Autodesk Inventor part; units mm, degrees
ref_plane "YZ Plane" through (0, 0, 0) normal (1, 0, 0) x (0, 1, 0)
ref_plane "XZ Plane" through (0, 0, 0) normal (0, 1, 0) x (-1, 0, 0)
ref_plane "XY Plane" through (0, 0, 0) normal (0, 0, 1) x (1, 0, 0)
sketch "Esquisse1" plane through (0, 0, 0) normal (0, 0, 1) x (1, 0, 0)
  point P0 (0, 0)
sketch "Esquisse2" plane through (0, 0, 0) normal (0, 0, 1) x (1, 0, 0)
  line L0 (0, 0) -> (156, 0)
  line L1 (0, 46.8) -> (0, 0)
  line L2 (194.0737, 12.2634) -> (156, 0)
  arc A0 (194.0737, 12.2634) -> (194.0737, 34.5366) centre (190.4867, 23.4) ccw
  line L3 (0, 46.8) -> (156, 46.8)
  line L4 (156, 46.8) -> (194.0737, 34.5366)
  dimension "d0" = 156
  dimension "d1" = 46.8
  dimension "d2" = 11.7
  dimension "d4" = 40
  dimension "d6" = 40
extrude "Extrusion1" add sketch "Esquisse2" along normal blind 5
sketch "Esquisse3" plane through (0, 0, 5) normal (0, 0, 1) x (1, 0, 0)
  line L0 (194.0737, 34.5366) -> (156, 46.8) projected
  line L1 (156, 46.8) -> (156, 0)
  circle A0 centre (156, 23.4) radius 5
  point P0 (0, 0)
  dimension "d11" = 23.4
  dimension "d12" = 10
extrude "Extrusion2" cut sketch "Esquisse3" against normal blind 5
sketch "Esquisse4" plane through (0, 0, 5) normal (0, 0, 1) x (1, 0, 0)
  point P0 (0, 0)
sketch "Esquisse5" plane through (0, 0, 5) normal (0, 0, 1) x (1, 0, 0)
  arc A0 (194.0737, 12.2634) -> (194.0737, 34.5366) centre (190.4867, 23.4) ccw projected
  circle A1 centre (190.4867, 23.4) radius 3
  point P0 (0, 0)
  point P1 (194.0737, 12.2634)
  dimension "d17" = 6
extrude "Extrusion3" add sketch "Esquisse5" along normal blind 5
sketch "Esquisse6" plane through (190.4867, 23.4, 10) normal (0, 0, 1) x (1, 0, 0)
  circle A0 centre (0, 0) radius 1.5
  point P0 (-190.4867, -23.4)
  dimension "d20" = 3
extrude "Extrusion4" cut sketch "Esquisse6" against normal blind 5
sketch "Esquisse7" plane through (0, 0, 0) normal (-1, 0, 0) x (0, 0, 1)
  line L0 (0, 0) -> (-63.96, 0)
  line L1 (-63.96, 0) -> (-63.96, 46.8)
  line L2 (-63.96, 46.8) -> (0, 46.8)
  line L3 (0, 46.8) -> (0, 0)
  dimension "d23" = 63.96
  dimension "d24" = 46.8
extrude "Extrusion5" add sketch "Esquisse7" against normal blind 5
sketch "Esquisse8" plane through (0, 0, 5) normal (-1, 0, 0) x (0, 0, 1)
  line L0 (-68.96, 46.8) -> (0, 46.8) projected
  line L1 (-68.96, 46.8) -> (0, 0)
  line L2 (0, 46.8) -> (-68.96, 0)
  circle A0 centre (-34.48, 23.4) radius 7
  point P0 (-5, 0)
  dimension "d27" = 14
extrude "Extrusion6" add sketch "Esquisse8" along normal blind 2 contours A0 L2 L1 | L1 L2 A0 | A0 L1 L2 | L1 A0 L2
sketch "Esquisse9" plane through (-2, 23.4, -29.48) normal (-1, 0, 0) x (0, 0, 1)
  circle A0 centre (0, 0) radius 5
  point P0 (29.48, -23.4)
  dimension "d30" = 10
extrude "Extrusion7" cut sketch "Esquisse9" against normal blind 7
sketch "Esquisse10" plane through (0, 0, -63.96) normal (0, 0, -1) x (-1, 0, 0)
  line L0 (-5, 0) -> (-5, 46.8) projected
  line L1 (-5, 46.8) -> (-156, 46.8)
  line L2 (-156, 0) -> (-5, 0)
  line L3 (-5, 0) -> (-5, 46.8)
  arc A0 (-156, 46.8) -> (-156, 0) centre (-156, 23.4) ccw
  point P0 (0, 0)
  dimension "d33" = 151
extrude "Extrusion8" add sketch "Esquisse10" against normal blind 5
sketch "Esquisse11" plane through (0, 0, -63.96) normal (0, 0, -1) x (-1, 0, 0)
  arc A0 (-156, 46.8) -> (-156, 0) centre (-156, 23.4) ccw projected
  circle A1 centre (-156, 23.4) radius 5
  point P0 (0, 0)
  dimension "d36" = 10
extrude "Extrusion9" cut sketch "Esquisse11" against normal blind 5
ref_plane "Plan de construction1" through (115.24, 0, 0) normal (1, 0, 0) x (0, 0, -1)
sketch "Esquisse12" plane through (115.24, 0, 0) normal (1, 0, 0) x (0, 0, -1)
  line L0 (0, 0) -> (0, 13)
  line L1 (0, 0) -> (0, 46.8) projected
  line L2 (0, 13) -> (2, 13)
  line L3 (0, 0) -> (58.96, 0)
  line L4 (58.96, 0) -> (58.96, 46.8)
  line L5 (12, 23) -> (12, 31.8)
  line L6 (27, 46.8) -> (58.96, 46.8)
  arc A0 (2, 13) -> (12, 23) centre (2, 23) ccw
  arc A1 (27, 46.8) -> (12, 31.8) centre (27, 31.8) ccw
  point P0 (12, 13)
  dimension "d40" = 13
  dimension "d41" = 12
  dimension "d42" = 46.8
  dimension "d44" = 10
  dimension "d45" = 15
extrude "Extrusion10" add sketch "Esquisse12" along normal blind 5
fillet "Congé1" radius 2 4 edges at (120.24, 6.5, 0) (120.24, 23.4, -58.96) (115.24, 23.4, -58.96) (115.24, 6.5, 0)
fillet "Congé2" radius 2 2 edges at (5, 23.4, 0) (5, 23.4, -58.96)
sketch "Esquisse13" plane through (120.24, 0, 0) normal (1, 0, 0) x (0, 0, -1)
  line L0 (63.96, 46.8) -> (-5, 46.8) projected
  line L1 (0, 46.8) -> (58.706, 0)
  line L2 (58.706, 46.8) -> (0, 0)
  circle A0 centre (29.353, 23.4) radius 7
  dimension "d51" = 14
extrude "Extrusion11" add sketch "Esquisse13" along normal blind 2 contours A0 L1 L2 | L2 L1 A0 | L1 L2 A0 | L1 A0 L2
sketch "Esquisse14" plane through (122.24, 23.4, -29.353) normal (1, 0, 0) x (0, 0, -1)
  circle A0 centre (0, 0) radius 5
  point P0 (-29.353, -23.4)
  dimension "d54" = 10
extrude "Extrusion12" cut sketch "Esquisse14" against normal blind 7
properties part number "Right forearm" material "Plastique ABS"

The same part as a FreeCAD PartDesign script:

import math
import FreeCAD as App
import Part
import Sketcher


def edges_at(feature, points):
    """Names of the edges that pass closest to the given points."""
    edges = feature.Shape.Edges
    near = lambda p: min(range(len(edges)), key=lambda i: edges[i].distToShape(Part.Vertex(*p))[0])
    return sorted({f"Edge{near(p) + 1}" for p in points})

doc = App.newDocument("Part")
params = doc.addObject("Spreadsheet::Sheet", "Params")
for row, (alias, value) in enumerate([
    ("sketch1_radius", "11.7 mm"),
    ("sketch1_width", "156 mm"),
    ("sketch1_length", "40 mm"),
    ("sketch1_height", "46.8 mm"),
    ("pad1_length", "5 mm"),
    ("sketch2_diameter", "10 mm"),
    ("pocket1_length", "5 mm"),
    ("sketch3_diameter", "6 mm"),
    ("pad2_length", "5 mm"),
    ("sketch4_diameter", "3 mm"),
    ("pocket2_length", "5 mm"),
    ("sketch5_width", "46.8 mm"),
    ("sketch5_height", "63.96 mm"),
    ("pad3_length", "5 mm"),
    ("sketch6_diameter", "14 mm"),
    ("pad4_length", "2 mm"),
    ("sketch7_diameter", "10 mm"),
    ("pocket3_length", "7 mm"),
    ("sketch8_width", "151 mm"),
    ("sketch8_radius", "23.4 mm"),
    ("pad5_length", "5 mm"),
    ("sketch9_diameter", "10 mm"),
    ("pocket4_length", "5 mm"),
    ("sketch10_radius", "15 mm"),
    ("sketch10_radius2", "10 mm"),
    ("sketch10_width", "13 mm"),
    ("sketch10_width2", "46.8 mm"),
    ("sketch10_height", "58.96 mm"),
    ("pad6_length", "5 mm"),
    ("fillet_radius", "2 mm"),
    ("fillet2_radius", "2 mm"),
    ("sketch11_diameter", "14 mm"),
    ("pad7_length", "2 mm"),
    ("sketch12_diameter", "10 mm"),
    ("pocket5_length", "7 mm"),
], start=1):
    params.set(f"A{row}", alias)
    params.set(f"B{row}", "=" + value)
    params.setAlias(f"B{row}", alias)

body = doc.addObject("PartDesign::Body", "Body")

# Sketch on XY plane
sketch1 = doc.addObject("Sketcher::SketchObject", "Sketch")
body.addObject(sketch1)
sketch1.AttachmentSupport = (doc.XY_Plane, [""])
sketch1.MapMode = "FlatFace"
sketch1.addGeometry(Part.LineSegment(App.Vector(0, 47, 0), App.Vector(0, 0, 0)), False)
sketch1.addGeometry(Part.LineSegment(App.Vector(0, 0, 0), App.Vector(156, 0, 0)), False)
sketch1.addGeometry(Part.LineSegment(App.Vector(156, 0, 0), App.Vector(194, 12, 0)), False)
sketch1.addGeometry(Part.ArcOfCircle(Part.Circle(App.Vector(190, 23, 0), App.Vector(0, 0, 1), 12), math.radians(-72), math.radians(72)), False)
sketch1.addGeometry(Part.LineSegment(App.Vector(194, 35, 0), App.Vector(156, 47, 0)), False)
sketch1.addGeometry(Part.LineSegment(App.Vector(156, 47, 0), App.Vector(0, 47, 0)), False)
sketch1.addConstraint(Sketcher.Constraint("Coincident", 0, 2, 1, 1))
sketch1.addConstraint(Sketcher.Constraint("Coincident", 1, 2, 2, 1))
sketch1.addConstraint(Sketcher.Constraint("Tangent", 2, 2, 3, 1))
sketch1.addConstraint(Sketcher.Constraint("Tangent", 3, 2, 4, 1))
sketch1.addConstraint(Sketcher.Constraint("Coincident", 4, 2, 5, 1))
sketch1.addConstraint(Sketcher.Constraint("Coincident", 5, 2, 0, 1))
sketch1.addConstraint(Sketcher.Constraint("Vertical", 0))
sketch1.addConstraint(Sketcher.Constraint("Horizontal", 1))
sketch1.addConstraint(Sketcher.Constraint("Horizontal", 5))
sketch1.addConstraint(Sketcher.Constraint("Coincident", 0, 2, -1, 1))
sketch1.addConstraint(Sketcher.Constraint("Vertical", 2, 2, 3, 2))
sketch1.addConstraint(Sketcher.Constraint("Vertical", 1, 2, 4, 2))
sketch1.addConstraint(Sketcher.Constraint("Radius", 3, 11.7))
sketch1.addConstraint(Sketcher.Constraint("DistanceX", 1, 1, 1, 2, 156.0))
sketch1.addConstraint(Sketcher.Constraint("Distance", 2, 40.0))
sketch1.addConstraint(Sketcher.Constraint("DistanceY", 0, 2, 0, 1, 46.8))
sketch1.setExpression("Constraints[12]", "Params.sketch1_radius")
sketch1.setExpression("Constraints[13]", "Params.sketch1_width")
sketch1.setExpression("Constraints[14]", "Params.sketch1_length")
sketch1.setExpression("Constraints[15]", "Params.sketch1_height")
pad1 = doc.addObject("PartDesign::Pad", "Pad")
body.addObject(pad1)
pad1.Profile = sketch1
pad1.setExpression("Length", "Params.pad1_length")

# Sketch on XY plane
sketch2 = doc.addObject("Sketcher::SketchObject", "Sketch001")
body.addObject(sketch2)
sketch2.AttachmentSupport = (doc.XY_Plane, [""])
sketch2.MapMode = "FlatFace"
sketch2.AttachmentOffset = App.Placement(App.Vector(0, 0, 5), App.Rotation())
sketch2.addGeometry(Part.Circle(App.Vector(156, 23, 0), App.Vector(0, 0, 1), 5), False)
sketch2.addConstraint(Sketcher.Constraint("Diameter", 0, 10.0))
sketch2.addConstraint(Sketcher.Constraint("DistanceY", -1, 1, 0, 3, 23.4))
sketch2.addConstraint(Sketcher.Constraint("DistanceX", -1, 1, 0, 3, 156.0))
sketch2.setExpression("Constraints[0]", "Params.sketch2_diameter")
pocket1 = doc.addObject("PartDesign::Pocket", "Pocket")
body.addObject(pocket1)
pocket1.Profile = sketch2
pocket1.setExpression("Length", "Params.pocket1_length")

# Sketch on XY plane
sketch3 = doc.addObject("Sketcher::SketchObject", "Sketch002")
body.addObject(sketch3)
sketch3.AttachmentSupport = (doc.XY_Plane, [""])
sketch3.MapMode = "FlatFace"
sketch3.AttachmentOffset = App.Placement(App.Vector(0, 0, 5), App.Rotation())
sketch3.addGeometry(Part.Circle(App.Vector(190.5, 23.4, 0), App.Vector(0, 0, 1), 3), False)
sketch3.addConstraint(Sketcher.Constraint("Diameter", 0, 6.0))
sketch3.addConstraint(Sketcher.Constraint("DistanceY", -1, 1, 0, 3, 23.4))
sketch3.addConstraint(Sketcher.Constraint("DistanceX", -1, 1, 0, 3, 190.4867))
sketch3.setExpression("Constraints[0]", "Params.sketch3_diameter")
pad2 = doc.addObject("PartDesign::Pad", "Pad001")
body.addObject(pad2)
pad2.Profile = sketch3
pad2.setExpression("Length", "Params.pad2_length")

# Sketch on XY plane
sketch4 = doc.addObject("Sketcher::SketchObject", "Sketch003")
body.addObject(sketch4)
sketch4.AttachmentSupport = (doc.XY_Plane, [""])
sketch4.MapMode = "FlatFace"
sketch4.AttachmentOffset = App.Placement(App.Vector(0, 0, 10), App.Rotation())
sketch4.addGeometry(Part.Circle(App.Vector(190.5, 23.4, 0), App.Vector(0, 0, 1), 1.5), False)
sketch4.addConstraint(Sketcher.Constraint("Diameter", 0, 3.0))
sketch4.addConstraint(Sketcher.Constraint("DistanceY", -1, 1, 0, 3, 23.4))
sketch4.addConstraint(Sketcher.Constraint("DistanceX", -1, 1, 0, 3, 190.4867))
sketch4.setExpression("Constraints[0]", "Params.sketch4_diameter")
pocket2 = doc.addObject("PartDesign::Pocket", "Pocket001")
body.addObject(pocket2)
pocket2.Profile = sketch4
pocket2.setExpression("Length", "Params.pocket2_length")

# Sketch on YZ plane
sketch5 = doc.addObject("Sketcher::SketchObject", "Sketch004")
body.addObject(sketch5)
sketch5.AttachmentSupport = (doc.YZ_Plane, [""])
sketch5.MapMode = "FlatFace"
sketch5.addGeometry(Part.LineSegment(App.Vector(0, -64, 0), App.Vector(0, 0, 0)), False)
sketch5.addGeometry(Part.LineSegment(App.Vector(0, 0, 0), App.Vector(47, 0, 0)), False)
sketch5.addGeometry(Part.LineSegment(App.Vector(47, 0, 0), App.Vector(47, -64, 0)), False)
sketch5.addGeometry(Part.LineSegment(App.Vector(47, -64, 0), App.Vector(0, -64, 0)), False)
sketch5.addConstraint(Sketcher.Constraint("Coincident", 0, 2, 1, 1))
sketch5.addConstraint(Sketcher.Constraint("Coincident", 1, 2, 2, 1))
sketch5.addConstraint(Sketcher.Constraint("Coincident", 2, 2, 3, 1))
sketch5.addConstraint(Sketcher.Constraint("Coincident", 3, 2, 0, 1))
sketch5.addConstraint(Sketcher.Constraint("Vertical", 0))
sketch5.addConstraint(Sketcher.Constraint("Horizontal", 1))
sketch5.addConstraint(Sketcher.Constraint("Vertical", 2))
sketch5.addConstraint(Sketcher.Constraint("Horizontal", 3))
sketch5.addConstraint(Sketcher.Constraint("Coincident", 0, 2, -1, 1))
sketch5.addConstraint(Sketcher.Constraint("DistanceX", 1, 1, 1, 2, 46.8))
sketch5.addConstraint(Sketcher.Constraint("DistanceY", 0, 1, 0, 2, 63.96))
sketch5.setExpression("Constraints[9]", "Params.sketch5_width")
sketch5.setExpression("Constraints[10]", "Params.sketch5_height")
pad3 = doc.addObject("PartDesign::Pad", "Pad002")
body.addObject(pad3)
pad3.Profile = sketch5
pad3.setExpression("Length", "Params.pad3_length")

# Sketch on YZ plane
sketch6 = doc.addObject("Sketcher::SketchObject", "Sketch005")
body.addObject(sketch6)
sketch6.AttachmentSupport = (doc.YZ_Plane, [""])
sketch6.MapMode = "FlatFace"
sketch6.addGeometry(Part.Circle(App.Vector(23, -29, 0), App.Vector(0, 0, 1), 7), False)
sketch6.addConstraint(Sketcher.Constraint("Diameter", 0, 14.0))
sketch6.addConstraint(Sketcher.Constraint("DistanceX", -1, 1, 0, 3, 23.4))
sketch6.addConstraint(Sketcher.Constraint("DistanceY", 0, 3, -1, 1, 29.48))
sketch6.setExpression("Constraints[0]", "Params.sketch6_diameter")
pad4 = doc.addObject("PartDesign::Pad", "Pad003")
body.addObject(pad4)
pad4.Profile = sketch6
pad4.setExpression("Length", "Params.pad4_length")
pad4.Reversed = True

# Sketch on YZ plane
sketch7 = doc.addObject("Sketcher::SketchObject", "Sketch006")
body.addObject(sketch7)
sketch7.AttachmentSupport = (doc.YZ_Plane, [""])
sketch7.MapMode = "FlatFace"
sketch7.AttachmentOffset = App.Placement(App.Vector(0, 0, -2), App.Rotation())
sketch7.addGeometry(Part.Circle(App.Vector(23, -29, 0), App.Vector(0, 0, 1), 5), False)
sketch7.addConstraint(Sketcher.Constraint("Diameter", 0, 10.0))
sketch7.addConstraint(Sketcher.Constraint("DistanceX", -1, 1, 0, 3, 23.4))
sketch7.addConstraint(Sketcher.Constraint("DistanceY", 0, 3, -1, 1, 29.48))
sketch7.setExpression("Constraints[0]", "Params.sketch7_diameter")
pocket3 = doc.addObject("PartDesign::Pocket", "Pocket002")
body.addObject(pocket3)
pocket3.Profile = sketch7
pocket3.setExpression("Length", "Params.pocket3_length")
pocket3.Reversed = True

# Sketch on XY plane
sketch8 = doc.addObject("Sketcher::SketchObject", "Sketch007")
body.addObject(sketch8)
sketch8.AttachmentSupport = (doc.XY_Plane, [""])
sketch8.MapMode = "FlatFace"
sketch8.AttachmentOffset = App.Placement(App.Vector(0, 0, -63.96), App.Rotation())
sketch8.addGeometry(Part.LineSegment(App.Vector(156, 0, 0), App.Vector(5, 0, 0)), False)
sketch8.addGeometry(Part.LineSegment(App.Vector(5, 0, 0), App.Vector(5, 47, 0)), False)
sketch8.addGeometry(Part.LineSegment(App.Vector(5, 47, 0), App.Vector(156, 47, 0)), False)
sketch8.addGeometry(Part.ArcOfCircle(Part.Circle(App.Vector(156, 23, 0), App.Vector(0, 0, 1), 23), math.radians(-90), math.radians(90)), False)
sketch8.addConstraint(Sketcher.Constraint("Coincident", 0, 2, 1, 1))
sketch8.addConstraint(Sketcher.Constraint("Coincident", 1, 2, 2, 1))
sketch8.addConstraint(Sketcher.Constraint("Tangent", 2, 2, 3, 2))
sketch8.addConstraint(Sketcher.Constraint("Tangent", 3, 1, 0, 1))
sketch8.addConstraint(Sketcher.Constraint("Horizontal", 0))
sketch8.addConstraint(Sketcher.Constraint("Vertical", 1))
sketch8.addConstraint(Sketcher.Constraint("Horizontal", 2))
sketch8.addConstraint(Sketcher.Constraint("PointOnObject", 0, 2, -1))
sketch8.addConstraint(Sketcher.Constraint("DistanceX", 0, 2, 0, 1, 151.0))
sketch8.addConstraint(Sketcher.Constraint("Radius", 3, 23.4))
sketch8.addConstraint(Sketcher.Constraint("DistanceX", -1, 1, 3, 3, 156.0))
sketch8.setExpression("Constraints[8]", "Params.sketch8_width")
sketch8.setExpression("Constraints[9]", "Params.sketch8_radius")
pad5 = doc.addObject("PartDesign::Pad", "Pad004")
body.addObject(pad5)
pad5.Profile = sketch8
pad5.setExpression("Length", "Params.pad5_length")

# Sketch on XY plane
sketch9 = doc.addObject("Sketcher::SketchObject", "Sketch008")
body.addObject(sketch9)
sketch9.AttachmentSupport = (doc.XY_Plane, [""])
sketch9.MapMode = "FlatFace"
sketch9.AttachmentOffset = App.Placement(App.Vector(0, 0, -63.96), App.Rotation())
sketch9.addGeometry(Part.Circle(App.Vector(156, 23, 0), App.Vector(0, 0, 1), 5), False)
sketch9.addConstraint(Sketcher.Constraint("Diameter", 0, 10.0))
sketch9.addConstraint(Sketcher.Constraint("DistanceX", -1, 1, 0, 3, 156.0))
sketch9.addConstraint(Sketcher.Constraint("DistanceY", -1, 1, 0, 3, 23.4))
sketch9.setExpression("Constraints[0]", "Params.sketch9_diameter")
pocket4 = doc.addObject("PartDesign::Pocket", "Pocket003")
body.addObject(pocket4)
pocket4.Profile = sketch9
pocket4.setExpression("Length", "Params.pocket4_length")
pocket4.Reversed = True

# Sketch on YZ plane
sketch10 = doc.addObject("Sketcher::SketchObject", "Sketch009")
body.addObject(sketch10)
sketch10.AttachmentSupport = (doc.YZ_Plane, [""])
sketch10.MapMode = "FlatFace"
sketch10.AttachmentOffset = App.Placement(App.Vector(0, 0, 115.24), App.Rotation())
sketch10.addGeometry(Part.LineSegment(App.Vector(13, 0, 0), App.Vector(0, 0, 0)), False)
sketch10.addGeometry(Part.LineSegment(App.Vector(0, 0, 0), App.Vector(0, -59, 0)), False)
sketch10.addGeometry(Part.LineSegment(App.Vector(0, -59, 0), App.Vector(46.8, -59, 0)), False)
sketch10.addGeometry(Part.LineSegment(App.Vector(46.8, -59, 0), App.Vector(46.8, -27, 0)), False)
sketch10.addGeometry(Part.ArcOfCircle(Part.Circle(App.Vector(31.8, -27, 0), App.Vector(0, 0, 1), 15), math.radians(0), math.radians(90)), False)
sketch10.addGeometry(Part.LineSegment(App.Vector(31.8, -12, 0), App.Vector(23, -12, 0)), False)
sketch10.addGeometry(Part.ArcOfCircle(Part.Circle(App.Vector(23, -2, 0), App.Vector(0, 0, 1), 10), math.radians(180), math.radians(270)), False)
sketch10.addGeometry(Part.LineSegment(App.Vector(13, -2, 0), App.Vector(13, 0, 0)), False)
sketch10.addConstraint(Sketcher.Constraint("Coincident", 0, 2, 1, 1))
sketch10.addConstraint(Sketcher.Constraint("Coincident", 1, 2, 2, 1))
sketch10.addConstraint(Sketcher.Constraint("Coincident", 2, 2, 3, 1))
sketch10.addConstraint(Sketcher.Constraint("Tangent", 3, 2, 4, 1))
sketch10.addConstraint(Sketcher.Constraint("Tangent", 4, 2, 5, 1))
sketch10.addConstraint(Sketcher.Constraint("Tangent", 5, 2, 6, 2))
sketch10.addConstraint(Sketcher.Constraint("Tangent", 6, 1, 7, 1))
sketch10.addConstraint(Sketcher.Constraint("Coincident", 7, 2, 0, 1))
sketch10.addConstraint(Sketcher.Constraint("Horizontal", 0))
sketch10.addConstraint(Sketcher.Constraint("Vertical", 1))
sketch10.addConstraint(Sketcher.Constraint("Horizontal", 2))
sketch10.addConstraint(Sketcher.Constraint("Vertical", 3))
sketch10.addConstraint(Sketcher.Constraint("Horizontal", 5))
sketch10.addConstraint(Sketcher.Constraint("Vertical", 7))
sketch10.addConstraint(Sketcher.Constraint("Coincident", 0, 2, -1, 1))
sketch10.addConstraint(Sketcher.Constraint("Radius", 4, 15.0))
sketch10.addConstraint(Sketcher.Constraint("Radius", 6, 10.0))
sketch10.addConstraint(Sketcher.Constraint("DistanceX", 0, 2, 0, 1, 13.0))
sketch10.addConstraint(Sketcher.Constraint("DistanceX", 2, 1, 2, 2, 46.8))
sketch10.addConstraint(Sketcher.Constraint("DistanceY", 4, 2, -1, 1, 12.0))
sketch10.addConstraint(Sketcher.Constraint("DistanceY", 1, 2, 1, 1, 58.96))
sketch10.setExpression("Constraints[15]", "Params.sketch10_radius")
sketch10.setExpression("Constraints[16]", "Params.sketch10_radius2")
sketch10.setExpression("Constraints[17]", "Params.sketch10_width")
sketch10.setExpression("Constraints[18]", "Params.sketch10_width2")
sketch10.setExpression("Constraints[20]", "Params.sketch10_height")
pad6 = doc.addObject("PartDesign::Pad", "Pad005")
body.addObject(pad6)
pad6.Profile = sketch10
pad6.setExpression("Length", "Params.pad6_length")
doc.recompute()

fillet = doc.addObject("PartDesign::Fillet", "Fillet")
body.addObject(fillet)
fillet.Base = (pad6, edges_at(pad6, [
    (120.24, 6.5, 0),
    (120.24, 23.4, -58.96),
    (115.24, 23.4, -58.96),
    (115.24, 6.5, 0),
]))
fillet.setExpression("Radius", "Params.fillet_radius")
doc.recompute()

fillet2 = doc.addObject("PartDesign::Fillet", "Fillet001")
body.addObject(fillet2)
fillet2.Base = (fillet, edges_at(fillet, [(5, 23.4, 0), (5, 23.4, -58.96)]))
fillet2.setExpression("Radius", "Params.fillet2_radius")

# Sketch on YZ plane
sketch11 = doc.addObject("Sketcher::SketchObject", "Sketch010")
body.addObject(sketch11)
sketch11.AttachmentSupport = (doc.YZ_Plane, [""])
sketch11.MapMode = "FlatFace"
sketch11.AttachmentOffset = App.Placement(App.Vector(0, 0, 120.24), App.Rotation())
sketch11.addGeometry(Part.Circle(App.Vector(23, -29, 0), App.Vector(0, 0, 1), 7), False)
sketch11.addConstraint(Sketcher.Constraint("Diameter", 0, 14.0))
sketch11.addConstraint(Sketcher.Constraint("DistanceX", -1, 1, 0, 3, 23.4))
sketch11.addConstraint(Sketcher.Constraint("DistanceY", 0, 3, -1, 1, 29.353))
sketch11.setExpression("Constraints[0]", "Params.sketch11_diameter")
pad7 = doc.addObject("PartDesign::Pad", "Pad006")
body.addObject(pad7)
pad7.Profile = sketch11
pad7.setExpression("Length", "Params.pad7_length")

# Sketch on YZ plane
sketch12 = doc.addObject("Sketcher::SketchObject", "Sketch011")
body.addObject(sketch12)
sketch12.AttachmentSupport = (doc.YZ_Plane, [""])
sketch12.MapMode = "FlatFace"
sketch12.AttachmentOffset = App.Placement(App.Vector(0, 0, 122.24), App.Rotation())
sketch12.addGeometry(Part.Circle(App.Vector(23, -29, 0), App.Vector(0, 0, 1), 5), False)
sketch12.addConstraint(Sketcher.Constraint("Diameter", 0, 10.0))
sketch12.addConstraint(Sketcher.Constraint("DistanceX", -1, 1, 0, 3, 23.4))
sketch12.addConstraint(Sketcher.Constraint("DistanceY", 0, 3, -1, 1, 29.353))
sketch12.setExpression("Constraints[0]", "Params.sketch12_diameter")
pocket5 = doc.addObject("PartDesign::Pocket", "Pocket004")
body.addObject(pocket5)
pocket5.Profile = sketch12
pocket5.setExpression("Length", "Params.pocket5_length")

doc.recompute()
